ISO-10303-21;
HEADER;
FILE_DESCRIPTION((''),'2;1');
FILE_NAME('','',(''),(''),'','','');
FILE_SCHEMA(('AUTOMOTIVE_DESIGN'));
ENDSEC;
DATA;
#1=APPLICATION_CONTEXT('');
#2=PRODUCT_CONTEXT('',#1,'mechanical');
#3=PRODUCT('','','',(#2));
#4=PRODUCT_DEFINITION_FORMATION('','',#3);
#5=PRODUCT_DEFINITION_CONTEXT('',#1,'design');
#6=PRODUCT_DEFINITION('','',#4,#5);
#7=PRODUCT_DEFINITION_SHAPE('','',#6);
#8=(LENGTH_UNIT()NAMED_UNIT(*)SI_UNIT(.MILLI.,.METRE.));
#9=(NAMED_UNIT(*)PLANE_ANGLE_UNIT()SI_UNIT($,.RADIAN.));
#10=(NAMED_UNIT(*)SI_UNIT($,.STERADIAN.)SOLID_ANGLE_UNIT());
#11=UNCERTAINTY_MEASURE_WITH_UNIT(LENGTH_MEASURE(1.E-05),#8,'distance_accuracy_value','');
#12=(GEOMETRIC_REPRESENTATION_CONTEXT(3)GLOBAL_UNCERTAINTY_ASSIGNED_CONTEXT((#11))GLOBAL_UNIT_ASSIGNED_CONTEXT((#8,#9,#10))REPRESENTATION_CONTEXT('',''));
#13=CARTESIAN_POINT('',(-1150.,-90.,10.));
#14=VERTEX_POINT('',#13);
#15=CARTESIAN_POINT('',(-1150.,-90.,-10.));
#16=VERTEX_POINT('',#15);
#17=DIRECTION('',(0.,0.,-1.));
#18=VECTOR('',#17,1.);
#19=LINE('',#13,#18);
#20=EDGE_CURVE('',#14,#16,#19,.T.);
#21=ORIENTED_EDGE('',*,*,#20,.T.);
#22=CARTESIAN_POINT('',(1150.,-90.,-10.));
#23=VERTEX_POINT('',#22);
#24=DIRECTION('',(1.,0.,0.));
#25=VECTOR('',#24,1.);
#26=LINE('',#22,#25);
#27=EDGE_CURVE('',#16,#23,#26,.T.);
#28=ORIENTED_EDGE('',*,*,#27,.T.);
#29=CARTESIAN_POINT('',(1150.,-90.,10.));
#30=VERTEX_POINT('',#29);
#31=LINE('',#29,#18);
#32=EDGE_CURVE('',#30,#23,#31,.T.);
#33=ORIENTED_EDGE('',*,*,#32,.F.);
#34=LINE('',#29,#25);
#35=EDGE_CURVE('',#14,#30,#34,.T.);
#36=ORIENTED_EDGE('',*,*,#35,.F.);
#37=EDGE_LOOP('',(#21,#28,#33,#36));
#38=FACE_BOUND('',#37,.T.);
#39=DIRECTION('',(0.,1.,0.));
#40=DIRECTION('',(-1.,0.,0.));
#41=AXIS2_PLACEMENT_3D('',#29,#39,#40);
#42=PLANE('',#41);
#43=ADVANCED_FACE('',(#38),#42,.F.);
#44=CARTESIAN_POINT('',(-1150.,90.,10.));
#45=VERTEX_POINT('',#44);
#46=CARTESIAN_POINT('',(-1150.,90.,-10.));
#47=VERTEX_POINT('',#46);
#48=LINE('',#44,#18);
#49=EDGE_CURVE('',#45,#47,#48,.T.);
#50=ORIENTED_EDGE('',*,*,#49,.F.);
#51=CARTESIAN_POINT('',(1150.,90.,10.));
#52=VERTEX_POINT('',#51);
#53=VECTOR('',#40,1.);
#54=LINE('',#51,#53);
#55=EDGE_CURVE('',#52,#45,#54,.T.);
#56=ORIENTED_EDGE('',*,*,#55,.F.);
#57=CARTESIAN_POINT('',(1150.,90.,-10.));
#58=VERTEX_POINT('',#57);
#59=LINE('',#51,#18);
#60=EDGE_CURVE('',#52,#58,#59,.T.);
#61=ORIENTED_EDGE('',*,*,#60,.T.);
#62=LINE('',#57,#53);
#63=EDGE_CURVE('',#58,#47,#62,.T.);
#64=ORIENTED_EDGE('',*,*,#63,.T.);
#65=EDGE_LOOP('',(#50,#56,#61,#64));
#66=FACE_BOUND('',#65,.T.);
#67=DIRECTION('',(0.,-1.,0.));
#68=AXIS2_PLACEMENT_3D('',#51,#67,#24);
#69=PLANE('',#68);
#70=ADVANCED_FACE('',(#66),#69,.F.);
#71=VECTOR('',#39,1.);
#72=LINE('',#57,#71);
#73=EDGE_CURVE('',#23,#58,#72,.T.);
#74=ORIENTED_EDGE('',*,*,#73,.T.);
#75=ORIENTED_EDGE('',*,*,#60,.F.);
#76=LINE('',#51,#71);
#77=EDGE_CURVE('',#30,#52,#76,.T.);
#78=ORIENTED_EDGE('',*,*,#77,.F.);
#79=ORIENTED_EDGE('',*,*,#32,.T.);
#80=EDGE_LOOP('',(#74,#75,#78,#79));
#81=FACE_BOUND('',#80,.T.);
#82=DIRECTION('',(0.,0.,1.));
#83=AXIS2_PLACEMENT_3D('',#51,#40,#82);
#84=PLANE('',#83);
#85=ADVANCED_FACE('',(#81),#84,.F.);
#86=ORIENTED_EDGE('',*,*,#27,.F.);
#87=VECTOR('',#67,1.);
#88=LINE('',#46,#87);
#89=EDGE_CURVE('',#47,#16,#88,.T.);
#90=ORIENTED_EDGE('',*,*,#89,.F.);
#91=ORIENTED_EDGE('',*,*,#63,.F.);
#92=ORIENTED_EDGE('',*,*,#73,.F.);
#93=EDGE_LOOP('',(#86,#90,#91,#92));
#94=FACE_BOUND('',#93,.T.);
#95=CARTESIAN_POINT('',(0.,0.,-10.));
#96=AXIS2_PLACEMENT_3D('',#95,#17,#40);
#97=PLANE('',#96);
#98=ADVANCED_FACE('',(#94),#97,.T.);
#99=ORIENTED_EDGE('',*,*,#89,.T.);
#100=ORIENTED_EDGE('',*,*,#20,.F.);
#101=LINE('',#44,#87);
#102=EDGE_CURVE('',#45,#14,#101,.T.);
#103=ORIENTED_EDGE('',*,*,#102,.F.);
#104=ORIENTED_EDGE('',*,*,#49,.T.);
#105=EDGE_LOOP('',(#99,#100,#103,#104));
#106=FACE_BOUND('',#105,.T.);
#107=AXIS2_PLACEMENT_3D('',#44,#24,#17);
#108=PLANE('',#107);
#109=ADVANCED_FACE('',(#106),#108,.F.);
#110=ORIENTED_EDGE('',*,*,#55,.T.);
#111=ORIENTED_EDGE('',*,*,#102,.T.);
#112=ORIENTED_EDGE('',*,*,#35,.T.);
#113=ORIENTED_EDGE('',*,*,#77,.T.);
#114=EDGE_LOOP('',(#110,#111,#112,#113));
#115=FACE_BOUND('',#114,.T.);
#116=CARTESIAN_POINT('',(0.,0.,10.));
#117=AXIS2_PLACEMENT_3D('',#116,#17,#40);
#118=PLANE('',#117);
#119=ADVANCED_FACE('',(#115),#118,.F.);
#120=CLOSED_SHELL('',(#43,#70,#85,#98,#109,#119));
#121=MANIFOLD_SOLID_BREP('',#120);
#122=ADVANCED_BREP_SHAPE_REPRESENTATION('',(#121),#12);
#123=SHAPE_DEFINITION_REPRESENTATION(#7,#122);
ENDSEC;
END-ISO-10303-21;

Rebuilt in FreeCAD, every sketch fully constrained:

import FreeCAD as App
import Part
import Sketcher
Q = App.Units.Quantity

doc = App.newDocument("Part")
body = doc.addObject("PartDesign::Body", "Body")

# Sketch on XY plane
sketch1 = body.newObject("Sketcher::SketchObject", "Sketch")
sketch1.AttachmentSupport = (doc.getObject("XY_Plane"), [""])
sketch1.MapMode = "FlatFace"
sketch1.addGeometry([
    Part.LineSegment(App.Vector(-1150, 90, 0), App.Vector(-1150, -90, 0)),
    Part.LineSegment(App.Vector(-1150, -90, 0), App.Vector(1150, -90, 0)),
    Part.LineSegment(App.Vector(1150, -90, 0), App.Vector(1150, 90, 0)),
    Part.LineSegment(App.Vector(1150, 90, 0), App.Vector(-1150, 90, 0)),
], False)
sketch1.addConstraint([
    Sketcher.Constraint("Coincident", 0, 2, 1, 1),
    Sketcher.Constraint("Coincident", 1, 2, 2, 1),
    Sketcher.Constraint("Coincident", 2, 2, 3, 1),
    Sketcher.Constraint("Coincident", 3, 2, 0, 1),
    Sketcher.Constraint("Vertical", 0),
    Sketcher.Constraint("Horizontal", 1),
    Sketcher.Constraint("Vertical", 2),
    Sketcher.Constraint("Horizontal", 3),
    Sketcher.Constraint("Symmetric", 0, 2, 2, 2, -1, 1),
    Sketcher.Constraint("DistanceX", 1, 1, 1, 2, Q("2300 mm")),
    Sketcher.Constraint("DistanceY", 0, 2, 0, 1, Q("180 mm")),
])
pad1 = body.newObject("PartDesign::Pad", "Pad")
pad1.Profile = sketch1
pad1.Length = 20
pad1.Midplane = True

doc.recompute()
